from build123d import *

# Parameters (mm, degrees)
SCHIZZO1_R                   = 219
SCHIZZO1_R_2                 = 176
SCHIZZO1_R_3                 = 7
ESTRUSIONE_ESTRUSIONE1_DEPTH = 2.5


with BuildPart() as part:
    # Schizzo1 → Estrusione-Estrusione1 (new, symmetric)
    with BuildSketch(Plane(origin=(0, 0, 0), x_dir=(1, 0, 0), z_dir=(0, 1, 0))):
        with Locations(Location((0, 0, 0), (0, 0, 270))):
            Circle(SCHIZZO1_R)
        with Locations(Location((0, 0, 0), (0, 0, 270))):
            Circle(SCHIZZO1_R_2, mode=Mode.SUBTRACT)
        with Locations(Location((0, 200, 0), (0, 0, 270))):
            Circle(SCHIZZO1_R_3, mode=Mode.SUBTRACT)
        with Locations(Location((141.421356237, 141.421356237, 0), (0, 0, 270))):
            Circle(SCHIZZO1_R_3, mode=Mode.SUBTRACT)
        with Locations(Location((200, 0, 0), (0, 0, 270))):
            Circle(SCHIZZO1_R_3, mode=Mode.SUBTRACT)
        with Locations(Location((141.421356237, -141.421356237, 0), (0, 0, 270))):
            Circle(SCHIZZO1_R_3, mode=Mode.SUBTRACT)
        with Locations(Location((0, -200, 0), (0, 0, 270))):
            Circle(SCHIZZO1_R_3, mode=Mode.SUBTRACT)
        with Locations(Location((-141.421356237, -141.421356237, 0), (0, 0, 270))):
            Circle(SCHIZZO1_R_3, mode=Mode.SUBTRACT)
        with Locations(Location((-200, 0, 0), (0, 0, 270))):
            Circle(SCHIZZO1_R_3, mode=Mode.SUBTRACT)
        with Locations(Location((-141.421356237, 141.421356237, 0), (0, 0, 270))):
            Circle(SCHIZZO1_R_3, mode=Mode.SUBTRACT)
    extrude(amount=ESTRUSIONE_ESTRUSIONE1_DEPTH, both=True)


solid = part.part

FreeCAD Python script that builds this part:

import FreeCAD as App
import Part
import Sketcher

V = App.Vector

doc = App.newDocument("Part")
params = doc.addObject("Spreadsheet::Sheet", "Params")
for row, (alias, value) in enumerate([
    ("sketch1_diameter", "438 mm"),
    ("sketch1_diameter2", "14 mm"),
    ("sketch1_diameter3", "352 mm"),
    ("pad1_length", "5 mm"),
], start=1):
    params.set(f"A{row}", alias)
    params.set(f"B{row}", "=" + value)
    params.setAlias(f"B{row}", alias)

body = doc.addObject("PartDesign::Body", "Body")

sketch1 = body.newObject("Sketcher::SketchObject", "Sketch")
sketch1.AttachmentSupport = (doc.getObject("XZ_Plane"), [""])
sketch1.MapMode = "FlatFace"
sketch1.addGeometry(Part.Circle(V(0, 0, 0), V(0, 0, 1), 219), False)
sketch1.addGeometry(Part.Circle(V(-141, -141, 0), V(0, 0, 1), 7), False)
sketch1.addGeometry(Part.Circle(V(0, -200, 0), V(0, 0, 1), 7), False)
sketch1.addGeometry(Part.Circle(V(-200, 0, 0), V(0, 0, 1), 7), False)
sketch1.addGeometry(Part.Circle(V(-141, 141, 0), V(0, 0, 1), 7), False)
sketch1.addGeometry(Part.Circle(V(141, -141, 0), V(0, 0, 1), 7), False)
sketch1.addGeometry(Part.Circle(V(200, 0, 0), V(0, 0, 1), 7), False)
sketch1.addGeometry(Part.Circle(V(0, 0, 0), V(0, 0, 1), 176), False)
sketch1.addGeometry(Part.Circle(V(0, 200, 0), V(0, 0, 1), 7), False)
sketch1.addGeometry(Part.Circle(V(141, 141, 0), V(0, 0, 1), 7), False)
sketch1.addConstraint(Sketcher.Constraint("Coincident", 0, 3, -1, 1))
sketch1.addConstraint(Sketcher.Constraint("Coincident", 7, 3, -1, 1))
sketch1.addConstraint(Sketcher.Constraint("Equal", 1, 2))
sketch1.addConstraint(Sketcher.Constraint("Equal", 2, 3))
sketch1.addConstraint(Sketcher.Constraint("Equal", 3, 4))
sketch1.addConstraint(Sketcher.Constraint("Equal", 4, 5))
sketch1.addConstraint(Sketcher.Constraint("Equal", 5, 6))
sketch1.addConstraint(Sketcher.Constraint("Equal", 6, 8))
sketch1.addConstraint(Sketcher.Constraint("Equal", 8, 9))
sketch1.addConstraint(Sketcher.Constraint("Symmetric", 4, 3, 5, 3, -1, 1))
sketch1.addConstraint(Sketcher.Constraint("Symmetric", 3, 3, 6, 3, -1, 1))
sketch1.addConstraint(Sketcher.Constraint("Symmetric", 2, 3, 8, 3, -1, 1))
sketch1.addConstraint(Sketcher.Constraint("Symmetric", 1, 3, 9, 3, -1, 1))
sketch1.addConstraint(Sketcher.Constraint("Symmetric", 1, 3, 5, 3, -2))
sketch1.addConstraint(Sketcher.Constraint("PointOnObject", 2, 3, -2))
sketch1.addConstraint(Sketcher.Constraint("PointOnObject", 3, 3, -1))
sketch1.addConstraint(Sketcher.Constraint("Diameter", 0, 438.0))
sketch1.addConstraint(Sketcher.Constraint("Diameter", 1, 14.0))
sketch1.addConstraint(Sketcher.Constraint("Diameter", 7, 352.0))
sketch1.addConstraint(Sketcher.Constraint("DistanceY", 2, 3, -1, 1, 200.0))
sketch1.addConstraint(Sketcher.Constraint("DistanceX", 3, 3, -1, 1, 200.0))
sketch1.addConstraint(Sketcher.Constraint("DistanceX", 1, 3, -1, 1, 141.421356))
sketch1.addConstraint(Sketcher.Constraint("DistanceY", 1, 3, -1, 1, 141.421356))
sketch1.setExpression("Constraints[16]", "Params.sketch1_diameter")
sketch1.setExpression("Constraints[17]", "Params.sketch1_diameter2")
sketch1.setExpression("Constraints[18]", "Params.sketch1_diameter3")
pad1 = body.newObject("PartDesign::Pad", "Pad")
pad1.Profile = sketch1
pad1.setExpression("Length", "Params.pad1_length")
pad1.Midplane = True

doc.recompute()
